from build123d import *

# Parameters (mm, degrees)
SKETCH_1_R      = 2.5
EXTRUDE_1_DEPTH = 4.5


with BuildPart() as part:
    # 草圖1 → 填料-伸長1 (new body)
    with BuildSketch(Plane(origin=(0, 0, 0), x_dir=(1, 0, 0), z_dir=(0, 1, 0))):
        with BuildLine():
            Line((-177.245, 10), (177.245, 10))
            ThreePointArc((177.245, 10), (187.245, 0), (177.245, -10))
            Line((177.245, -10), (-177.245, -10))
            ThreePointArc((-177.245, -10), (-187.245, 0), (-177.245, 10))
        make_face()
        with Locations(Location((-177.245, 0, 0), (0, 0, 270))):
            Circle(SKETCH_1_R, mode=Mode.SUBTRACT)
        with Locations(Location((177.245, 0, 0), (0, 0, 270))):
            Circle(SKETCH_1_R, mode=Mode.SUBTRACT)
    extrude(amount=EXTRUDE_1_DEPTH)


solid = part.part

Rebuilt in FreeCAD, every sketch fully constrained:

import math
import FreeCAD as App
import Part
import Sketcher
from FreeCAD import Vector
Q = App.Units.Quantity

doc = App.newDocument("Part")
body = doc.addObject("PartDesign::Body", "Body")

sketch1 = body.newObject("Sketcher::SketchObject", "Sketch")
sketch1.AttachmentSupport = (doc.getObject("XZ_Plane"), [""])
sketch1.MapMode = "FlatFace"
sketch1.addGeometry([
    Part.LineSegment(Vector(177.2, -10, 0), Vector(-177.2, -10, 0)),
    Part.ArcOfCircle(Part.Circle(Vector(-177.2, 0, 0), Vector(0, 0, 1), 10), math.radians(90), math.radians(270)),
    Part.LineSegment(Vector(-177.2, 10, 0), Vector(177.2, 10, 0)),
    Part.ArcOfCircle(Part.Circle(Vector(177.2, 0, 0), Vector(0, 0, 1), 10), math.radians(-90), math.radians(90)),
    Part.Circle(Vector(177.2, 0, 0), Vector(0, 0, 1), 2.5),
    Part.Circle(Vector(-177.2, 0, 0), Vector(0, 0, 1), 2.5),
], False)
sketch1.addConstraint([
    Sketcher.Constraint("Tangent", 0, 2, 1, 2),
    Sketcher.Constraint("Tangent", 1, 1, 2, 1),
    Sketcher.Constraint("Tangent", 2, 2, 3, 2),
    Sketcher.Constraint("Tangent", 3, 1, 0, 1),
    Sketcher.Constraint("Horizontal", 0),
    Sketcher.Constraint("Horizontal", 2),
    Sketcher.Constraint("Coincident", 4, 3, 3, 3),
    Sketcher.Constraint("Coincident", 5, 3, 1, 3),
    Sketcher.Constraint("Equal", 4, 5),
    Sketcher.Constraint("Symmetric", 1, 3, 3, 3, -1, 1),
    Sketcher.Constraint("Diameter", 4, Q("5 mm")),
    Sketcher.Constraint("Radius", 1, Q("10 mm")),
    Sketcher.Constraint("DistanceX", 0, 2, 0, 1, Q("354.49 mm")),
])
pad1 = body.newObject("PartDesign::Pad", "Pad")
pad1.Profile = sketch1
pad1.Length = 4.5
pad1.Reversed = True

doc.recompute()
